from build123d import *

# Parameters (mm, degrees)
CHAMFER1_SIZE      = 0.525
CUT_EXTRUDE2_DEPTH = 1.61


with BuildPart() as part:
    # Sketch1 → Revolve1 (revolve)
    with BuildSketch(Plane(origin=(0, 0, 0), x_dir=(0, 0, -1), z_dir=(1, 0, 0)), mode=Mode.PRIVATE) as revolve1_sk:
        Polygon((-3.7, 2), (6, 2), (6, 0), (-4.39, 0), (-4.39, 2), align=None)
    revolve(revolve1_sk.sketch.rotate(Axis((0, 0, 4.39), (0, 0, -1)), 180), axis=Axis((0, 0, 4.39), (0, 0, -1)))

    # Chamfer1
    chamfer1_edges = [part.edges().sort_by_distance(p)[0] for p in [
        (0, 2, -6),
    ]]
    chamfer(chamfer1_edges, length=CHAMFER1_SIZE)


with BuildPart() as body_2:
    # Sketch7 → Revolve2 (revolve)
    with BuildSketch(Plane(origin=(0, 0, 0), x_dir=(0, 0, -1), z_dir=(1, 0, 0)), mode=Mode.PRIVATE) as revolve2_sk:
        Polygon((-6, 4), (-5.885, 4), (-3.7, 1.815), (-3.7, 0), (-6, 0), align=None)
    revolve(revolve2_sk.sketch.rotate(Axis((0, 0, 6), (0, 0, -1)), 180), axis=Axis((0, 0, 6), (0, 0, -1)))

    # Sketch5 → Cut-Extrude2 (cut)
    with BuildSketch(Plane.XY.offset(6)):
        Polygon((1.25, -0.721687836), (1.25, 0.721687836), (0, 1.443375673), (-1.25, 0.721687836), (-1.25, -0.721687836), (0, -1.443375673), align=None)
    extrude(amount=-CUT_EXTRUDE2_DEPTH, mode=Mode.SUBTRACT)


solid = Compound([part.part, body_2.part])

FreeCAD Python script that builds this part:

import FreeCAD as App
import Part
import Sketcher
Q = App.Units.Quantity


def edges_at(feature, points):
    """Names of the edges that pass closest to the given points."""
    edges = feature.Shape.Edges
    near = lambda p: min(range(len(edges)), key=lambda i: edges[i].distToShape(Part.Vertex(*p))[0])
    return sorted({f"Edge{near(p) + 1}" for p in points})

doc = App.newDocument("Part")
params = doc.addObject("Spreadsheet::Sheet", "Params")
for row, (alias, value) in enumerate([
    ("sketch1_width", "2 mm"),
    ("sketch1_height", "10.39 mm"),
    ("revolution_angle", "360 deg"),
    ("chamfer_size", "0.525 mm"),
    ("sketch2_width", "4 mm"),
    ("sketch2_height", "2.3 mm"),
    ("revolution2_angle", "360 deg"),
    ("pocket1_length", "1.61 mm"),
], start=1):
    params.set(f"A{row}", alias)
    params.set(f"B{row}", "=" + value)
    params.setAlias(f"B{row}", alias)

body = doc.addObject("PartDesign::Body", "Body")

# Sketch on YZ plane
sketch1 = body.newObject("Sketcher::SketchObject", "Sketch")
sketch1.AttachmentSupport = (doc.getObject("YZ_Plane"), [""])
sketch1.MapMode = "FlatFace"
sketch1.addGeometry([
    Part.LineSegment(App.Vector(2, -6, 0), App.Vector(2, 4.4, 0)),
    Part.LineSegment(App.Vector(2, 4.4, 0), App.Vector(0, 4.4, 0)),
    Part.LineSegment(App.Vector(0, 4.4, 0), App.Vector(0, -6, 0)),
    Part.LineSegment(App.Vector(0, -6, 0), App.Vector(2, -6, 0)),
], False)
sketch1.addConstraint([
    Sketcher.Constraint("Coincident", 0, 2, 1, 1),
    Sketcher.Constraint("Coincident", 1, 2, 2, 1),
    Sketcher.Constraint("Coincident", 2, 2, 3, 1),
    Sketcher.Constraint("Coincident", 3, 2, 0, 1),
    Sketcher.Constraint("Vertical", 0),
    Sketcher.Constraint("Horizontal", 1),
    Sketcher.Constraint("Vertical", 2),
    Sketcher.Constraint("Horizontal", 3),
    Sketcher.Constraint("PointOnObject", 1, 2, -2),
    Sketcher.Constraint("DistanceX", 1, 2, 1, 1, Q("2 mm")),
    Sketcher.Constraint("DistanceY", 2, 2, -1, 1, Q("6 mm")),
    Sketcher.Constraint("DistanceY", 0, 1, 0, 2, Q("10.39 mm")),
])
sketch1.setExpression("Constraints[9]", "Params.sketch1_width")
sketch1.setExpression("Constraints[11]", "Params.sketch1_height")
revolution = body.newObject("PartDesign::Revolution", "Revolution")
revolution.Profile = sketch1
revolution.ReferenceAxis = (sketch1, ["V_Axis"])
revolution.setExpression("Angle", "Params.revolution_angle")
doc.recompute()

chamfer = body.newObject("PartDesign::Chamfer", "Chamfer")
chamfer.Base = (revolution, edges_at(revolution, [(0, 2, -6)]))
chamfer.setExpression("Size", "Params.chamfer_size")
body2 = doc.addObject("PartDesign::Body", "Body001")

# Sketch on YZ plane
sketch2 = body2.newObject("Sketcher::SketchObject", "Sketch001")
sketch2.AttachmentSupport = (doc.getObject("YZ_Plane001"), [""])
sketch2.MapMode = "FlatFace"
sketch2.addGeometry([
    Part.LineSegment(App.Vector(4, 5.88, 0), App.Vector(4, 6, 0)),  # 0
    Part.LineSegment(App.Vector(4, 6, 0), App.Vector(0, 6, 0)),  # 1
    Part.LineSegment(App.Vector(0, 6, 0), App.Vector(0, 3.7, 0)),  # 2
    Part.LineSegment(App.Vector(0, 3.7, 0), App.Vector(1.81, 3.7, 0)),  # 3
    Part.LineSegment(App.Vector(1.81, 3.7, 0), App.Vector(4, 5.88, 0)),  # 4
], False)
sketch2.addConstraint([
    Sketcher.Constraint("Coincident", 0, 2, 1, 1),
    Sketcher.Constraint("Coincident", 1, 2, 2, 1),
    Sketcher.Constraint("Coincident", 2, 2, 3, 1),
    Sketcher.Constraint("Coincident", 3, 2, 4, 1),
    Sketcher.Constraint("Coincident", 4, 2, 0, 1),
    Sketcher.Constraint("Vertical", 0),
    Sketcher.Constraint("Horizontal", 1),
    Sketcher.Constraint("Vertical", 2),
    Sketcher.Constraint("Horizontal", 3),
    Sketcher.Constraint("PointOnObject", 1, 2, -2),
    Sketcher.Constraint("DistanceX", 1, 2, 1, 1, Q("4 mm")),
    Sketcher.Constraint("Angle", 4, Q("45 deg")),
    Sketcher.Constraint("DistanceY", 2, 2, 2, 1, Q("2.3 mm")),
    Sketcher.Constraint("DistanceY", -1, 1, 0, 2, Q("6 mm")),
    Sketcher.Constraint("DistanceX", 3, 1, 3, 2, Q("1.815 mm")),
])
sketch2.setExpression("Constraints[10]", "Params.sketch2_width")
sketch2.setExpression("Constraints[12]", "Params.sketch2_height")
revolution2 = body2.newObject("PartDesign::Revolution", "Revolution001")
revolution2.Profile = sketch2
revolution2.ReferenceAxis = (sketch2, ["V_Axis"])
revolution2.setExpression("Angle", "Params.revolution2_angle")

# Sketch on XY plane
sketch3 = body2.newObject("Sketcher::SketchObject", "Sketch002")
sketch3.AttachmentSupport = (doc.getObject("XY_Plane001"), [""])
sketch3.MapMode = "FlatFace"
sketch3.AttachmentOffset = App.Placement(App.Vector(0, 0, 6), App.Rotation())
sketch3.addGeometry([
    Part.LineSegment(App.Vector(1.2, -0.7, 0), App.Vector(1.2, 0.7, 0)),  # 0
    Part.LineSegment(App.Vector(1.2, 0.7, 0), App.Vector(0, 1.4, 0)),  # 1
    Part.LineSegment(App.Vector(0, 1.4, 0), App.Vector(-1.2, 0.7, 0)),  # 2
    Part.LineSegment(App.Vector(-1.2, 0.7, 0), App.Vector(-1.2, -0.7, 0)),  # 3
    Part.LineSegment(App.Vector(-1.2, -0.7, 0), App.Vector(0, -1.4, 0)),  # 4
    Part.LineSegment(App.Vector(0, -1.4, 0), App.Vector(1.2, -0.7, 0)),  # 5
], False)
sketch3.addConstraint([
    Sketcher.Constraint("Coincident", 0, 2, 1, 1),
    Sketcher.Constraint("Coincident", 1, 2, 2, 1),
    Sketcher.Constraint("Coincident", 2, 2, 3, 1),
    Sketcher.Constraint("Coincident", 3, 2, 4, 1),
    Sketcher.Constraint("Coincident", 4, 2, 5, 1),
    Sketcher.Constraint("Coincident", 5, 2, 0, 1),
    Sketcher.Constraint("Vertical", 0),
    Sketcher.Constraint("Vertical", 3),
    Sketcher.Constraint("Symmetric", 0, 2, 3, 2, -1, 1),
    Sketcher.Constraint("Symmetric", 1, 2, 4, 2, -1, 1),
    Sketcher.Constraint("PointOnObject", 1, 2, -2),
    Sketcher.Constraint("Parallel", 2, 5),
    Sketcher.Constraint("Horizontal", 0, 2, 2, 2),
    Sketcher.Constraint("Angle", 1, Q("150 deg")),
    Sketcher.Constraint("DistanceX", 2, 2, 0, 2, Q("2.5 mm")),
    Sketcher.Constraint("DistanceY", 0, 1, 0, 2, Q("1.443376 mm")),
])
pocket1 = body2.newObject("PartDesign::Pocket", "Pocket")
pocket1.Profile = sketch3
pocket1.setExpression("Length", "Params.pocket1_length")

doc.recompute()
